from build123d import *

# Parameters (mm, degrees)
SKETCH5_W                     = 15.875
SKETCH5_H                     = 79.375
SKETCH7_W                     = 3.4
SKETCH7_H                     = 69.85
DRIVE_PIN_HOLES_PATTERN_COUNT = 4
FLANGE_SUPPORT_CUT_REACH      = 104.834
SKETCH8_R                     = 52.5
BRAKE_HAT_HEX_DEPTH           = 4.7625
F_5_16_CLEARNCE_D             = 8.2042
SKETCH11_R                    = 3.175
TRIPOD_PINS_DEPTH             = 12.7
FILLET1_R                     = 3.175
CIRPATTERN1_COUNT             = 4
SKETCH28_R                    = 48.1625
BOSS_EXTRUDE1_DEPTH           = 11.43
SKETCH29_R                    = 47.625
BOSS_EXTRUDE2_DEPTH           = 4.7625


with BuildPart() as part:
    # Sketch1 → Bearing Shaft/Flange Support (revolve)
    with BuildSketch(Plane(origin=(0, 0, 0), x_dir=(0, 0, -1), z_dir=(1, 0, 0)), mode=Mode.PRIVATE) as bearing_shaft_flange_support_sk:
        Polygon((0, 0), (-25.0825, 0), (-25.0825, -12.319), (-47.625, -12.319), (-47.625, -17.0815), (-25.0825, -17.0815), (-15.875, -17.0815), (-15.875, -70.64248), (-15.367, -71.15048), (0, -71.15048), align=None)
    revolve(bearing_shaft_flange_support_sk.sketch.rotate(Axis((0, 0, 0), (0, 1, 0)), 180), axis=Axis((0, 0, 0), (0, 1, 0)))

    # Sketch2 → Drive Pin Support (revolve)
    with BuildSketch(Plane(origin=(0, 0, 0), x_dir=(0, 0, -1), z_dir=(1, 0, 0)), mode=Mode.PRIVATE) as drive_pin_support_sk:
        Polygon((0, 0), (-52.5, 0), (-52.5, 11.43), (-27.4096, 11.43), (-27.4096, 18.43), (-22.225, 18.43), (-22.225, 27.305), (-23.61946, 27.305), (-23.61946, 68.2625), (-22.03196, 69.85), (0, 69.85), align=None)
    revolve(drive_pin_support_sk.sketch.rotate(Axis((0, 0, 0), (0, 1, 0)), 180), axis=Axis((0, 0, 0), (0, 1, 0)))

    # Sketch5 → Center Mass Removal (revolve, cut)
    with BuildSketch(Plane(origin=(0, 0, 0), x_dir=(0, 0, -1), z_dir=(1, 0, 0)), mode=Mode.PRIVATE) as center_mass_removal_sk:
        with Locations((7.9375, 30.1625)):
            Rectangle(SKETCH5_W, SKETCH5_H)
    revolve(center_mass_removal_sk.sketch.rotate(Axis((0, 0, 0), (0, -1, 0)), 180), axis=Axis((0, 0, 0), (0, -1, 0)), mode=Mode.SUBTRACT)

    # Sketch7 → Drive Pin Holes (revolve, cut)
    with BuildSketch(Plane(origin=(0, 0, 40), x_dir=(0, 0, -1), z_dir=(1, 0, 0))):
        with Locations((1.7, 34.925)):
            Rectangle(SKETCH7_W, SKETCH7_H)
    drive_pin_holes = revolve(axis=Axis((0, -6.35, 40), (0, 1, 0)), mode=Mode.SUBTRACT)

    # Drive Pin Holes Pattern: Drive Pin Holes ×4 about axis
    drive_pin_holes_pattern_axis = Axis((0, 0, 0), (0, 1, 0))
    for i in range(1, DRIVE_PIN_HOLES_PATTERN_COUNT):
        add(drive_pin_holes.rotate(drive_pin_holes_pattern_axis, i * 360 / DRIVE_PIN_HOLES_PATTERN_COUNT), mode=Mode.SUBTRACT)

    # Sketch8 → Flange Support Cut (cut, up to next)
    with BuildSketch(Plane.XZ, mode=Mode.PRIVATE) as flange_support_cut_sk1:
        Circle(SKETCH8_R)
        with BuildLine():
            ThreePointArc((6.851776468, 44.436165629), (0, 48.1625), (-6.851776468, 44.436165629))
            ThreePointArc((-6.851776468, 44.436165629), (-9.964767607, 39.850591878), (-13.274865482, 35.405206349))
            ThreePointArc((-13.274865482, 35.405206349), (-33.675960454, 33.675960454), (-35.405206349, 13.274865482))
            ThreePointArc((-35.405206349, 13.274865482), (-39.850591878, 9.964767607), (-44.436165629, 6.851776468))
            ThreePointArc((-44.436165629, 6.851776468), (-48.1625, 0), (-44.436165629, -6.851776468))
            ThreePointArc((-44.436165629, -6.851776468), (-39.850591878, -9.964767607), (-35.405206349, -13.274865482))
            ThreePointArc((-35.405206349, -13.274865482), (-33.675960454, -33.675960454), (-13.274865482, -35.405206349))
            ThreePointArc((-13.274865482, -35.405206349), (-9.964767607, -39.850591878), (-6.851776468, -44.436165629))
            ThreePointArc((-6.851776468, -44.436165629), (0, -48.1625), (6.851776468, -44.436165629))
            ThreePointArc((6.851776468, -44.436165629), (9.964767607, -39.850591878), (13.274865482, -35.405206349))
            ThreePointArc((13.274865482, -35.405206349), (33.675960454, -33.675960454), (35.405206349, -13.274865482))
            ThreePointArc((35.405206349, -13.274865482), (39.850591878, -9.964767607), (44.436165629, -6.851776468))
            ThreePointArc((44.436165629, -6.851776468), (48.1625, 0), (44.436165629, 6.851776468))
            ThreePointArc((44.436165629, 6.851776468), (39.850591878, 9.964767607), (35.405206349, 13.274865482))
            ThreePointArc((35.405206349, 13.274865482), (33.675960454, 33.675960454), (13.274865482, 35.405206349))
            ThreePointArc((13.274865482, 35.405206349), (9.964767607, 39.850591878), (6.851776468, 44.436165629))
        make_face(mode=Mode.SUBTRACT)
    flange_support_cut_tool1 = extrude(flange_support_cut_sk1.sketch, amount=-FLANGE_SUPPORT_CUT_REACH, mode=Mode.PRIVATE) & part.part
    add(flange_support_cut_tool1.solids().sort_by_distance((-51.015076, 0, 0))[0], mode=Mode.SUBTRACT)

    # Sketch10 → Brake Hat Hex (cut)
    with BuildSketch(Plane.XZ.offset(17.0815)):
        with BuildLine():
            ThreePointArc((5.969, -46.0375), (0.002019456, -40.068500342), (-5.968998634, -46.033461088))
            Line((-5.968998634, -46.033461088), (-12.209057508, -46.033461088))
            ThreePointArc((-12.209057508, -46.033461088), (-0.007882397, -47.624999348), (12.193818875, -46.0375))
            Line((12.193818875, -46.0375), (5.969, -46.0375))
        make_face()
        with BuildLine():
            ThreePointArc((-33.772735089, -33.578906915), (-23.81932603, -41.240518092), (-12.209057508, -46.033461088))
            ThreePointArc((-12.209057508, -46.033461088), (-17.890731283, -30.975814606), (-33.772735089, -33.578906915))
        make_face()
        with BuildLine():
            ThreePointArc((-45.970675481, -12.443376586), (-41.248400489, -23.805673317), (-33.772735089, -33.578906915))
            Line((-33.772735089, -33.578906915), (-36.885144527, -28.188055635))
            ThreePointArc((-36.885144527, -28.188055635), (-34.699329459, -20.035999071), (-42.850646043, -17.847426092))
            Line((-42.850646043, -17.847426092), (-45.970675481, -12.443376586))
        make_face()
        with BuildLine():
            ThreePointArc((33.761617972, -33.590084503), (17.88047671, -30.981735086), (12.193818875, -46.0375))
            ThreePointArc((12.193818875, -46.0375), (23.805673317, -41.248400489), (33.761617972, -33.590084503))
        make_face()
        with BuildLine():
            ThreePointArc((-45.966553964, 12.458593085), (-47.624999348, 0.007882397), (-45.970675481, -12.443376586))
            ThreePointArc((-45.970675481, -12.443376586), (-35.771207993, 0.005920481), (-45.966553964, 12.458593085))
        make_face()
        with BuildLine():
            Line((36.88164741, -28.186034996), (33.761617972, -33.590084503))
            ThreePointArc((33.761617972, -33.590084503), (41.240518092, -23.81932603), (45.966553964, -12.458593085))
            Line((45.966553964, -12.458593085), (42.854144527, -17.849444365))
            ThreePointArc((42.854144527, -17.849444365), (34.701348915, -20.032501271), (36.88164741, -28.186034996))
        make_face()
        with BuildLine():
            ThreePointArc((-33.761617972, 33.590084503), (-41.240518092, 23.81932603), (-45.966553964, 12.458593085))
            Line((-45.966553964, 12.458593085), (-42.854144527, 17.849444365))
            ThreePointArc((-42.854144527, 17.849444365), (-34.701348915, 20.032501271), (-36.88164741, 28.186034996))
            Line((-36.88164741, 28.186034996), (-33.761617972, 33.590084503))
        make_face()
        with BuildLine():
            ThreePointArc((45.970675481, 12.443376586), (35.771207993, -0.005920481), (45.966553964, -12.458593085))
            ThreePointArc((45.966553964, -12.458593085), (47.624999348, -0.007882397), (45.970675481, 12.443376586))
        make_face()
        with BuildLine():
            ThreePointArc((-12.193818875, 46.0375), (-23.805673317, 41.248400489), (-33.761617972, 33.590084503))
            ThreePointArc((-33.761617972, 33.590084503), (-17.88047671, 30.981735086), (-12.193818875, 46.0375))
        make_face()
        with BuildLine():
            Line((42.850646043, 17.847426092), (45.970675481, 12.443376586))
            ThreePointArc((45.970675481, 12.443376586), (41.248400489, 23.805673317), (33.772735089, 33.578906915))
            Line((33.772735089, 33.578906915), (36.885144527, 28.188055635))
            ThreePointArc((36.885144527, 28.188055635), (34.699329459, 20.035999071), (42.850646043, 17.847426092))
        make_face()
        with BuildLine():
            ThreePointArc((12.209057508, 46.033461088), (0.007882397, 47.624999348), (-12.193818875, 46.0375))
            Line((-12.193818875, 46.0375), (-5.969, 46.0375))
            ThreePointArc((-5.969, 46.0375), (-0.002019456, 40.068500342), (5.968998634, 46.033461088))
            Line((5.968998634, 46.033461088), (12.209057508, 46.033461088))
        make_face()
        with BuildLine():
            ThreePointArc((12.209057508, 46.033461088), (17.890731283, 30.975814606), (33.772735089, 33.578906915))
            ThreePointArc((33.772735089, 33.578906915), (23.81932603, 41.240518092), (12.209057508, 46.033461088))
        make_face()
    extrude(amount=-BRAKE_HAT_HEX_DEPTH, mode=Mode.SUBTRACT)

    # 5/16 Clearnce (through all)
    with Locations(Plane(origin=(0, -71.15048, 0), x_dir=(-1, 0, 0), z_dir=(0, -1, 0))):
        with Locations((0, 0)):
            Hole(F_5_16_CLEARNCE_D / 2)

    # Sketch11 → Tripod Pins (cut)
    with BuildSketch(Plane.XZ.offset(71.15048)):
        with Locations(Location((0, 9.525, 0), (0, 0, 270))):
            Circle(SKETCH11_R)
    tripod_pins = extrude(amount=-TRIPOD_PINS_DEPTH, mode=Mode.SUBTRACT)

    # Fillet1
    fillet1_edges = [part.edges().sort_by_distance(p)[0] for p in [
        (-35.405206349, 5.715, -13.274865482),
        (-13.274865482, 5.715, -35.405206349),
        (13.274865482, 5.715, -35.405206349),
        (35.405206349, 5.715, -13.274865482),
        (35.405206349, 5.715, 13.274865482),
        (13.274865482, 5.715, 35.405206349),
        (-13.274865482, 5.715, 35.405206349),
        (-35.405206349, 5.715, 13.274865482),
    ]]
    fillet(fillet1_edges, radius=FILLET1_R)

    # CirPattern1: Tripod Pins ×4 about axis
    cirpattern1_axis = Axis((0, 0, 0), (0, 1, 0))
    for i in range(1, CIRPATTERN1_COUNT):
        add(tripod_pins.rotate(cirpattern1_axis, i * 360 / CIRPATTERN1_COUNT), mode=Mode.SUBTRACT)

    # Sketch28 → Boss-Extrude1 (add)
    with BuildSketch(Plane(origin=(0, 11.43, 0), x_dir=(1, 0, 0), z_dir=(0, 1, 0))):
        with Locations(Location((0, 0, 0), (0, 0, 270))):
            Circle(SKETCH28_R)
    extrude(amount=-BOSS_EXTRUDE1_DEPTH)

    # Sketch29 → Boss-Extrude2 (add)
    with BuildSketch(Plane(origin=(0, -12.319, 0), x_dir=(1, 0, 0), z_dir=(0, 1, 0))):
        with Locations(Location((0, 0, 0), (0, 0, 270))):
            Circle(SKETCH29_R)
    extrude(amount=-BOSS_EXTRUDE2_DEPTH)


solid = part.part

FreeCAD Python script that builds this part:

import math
import FreeCAD as App
import Part
import Sketcher
from FreeCAD import Vector
Q = App.Units.Quantity


def edges_at(feature, points):
    """Names of the edges that pass closest to the given points."""
    edges = feature.Shape.Edges
    near = lambda p: min(range(len(edges)), key=lambda i: edges[i].distToShape(Part.Vertex(*p))[0])
    return sorted({f"Edge{near(p) + 1}" for p in points})


def add_polygon(sketch, points):
    """Adds a closed chain of lines whose ends are joined by coincident constraints."""
    first, n = sketch.GeometryCount, len(points)
    for a, b in zip(points, points[1:] + points[:1]):
        sketch.addGeometry(Part.LineSegment(App.Vector(*a, 0), App.Vector(*b, 0)), False)
    for i in range(n):
        sketch.addConstraint(Sketcher.Constraint("Coincident", first + i, 2, first + (i + 1) % n, 1))

doc = App.newDocument("Part")
body = doc.addObject("PartDesign::Body", "Body")

# Sketch on YZ plane
sketch1 = body.newObject("Sketcher::SketchObject", "Sketch")
sketch1.AttachmentSupport = (doc.getObject("YZ_Plane"), [""])
sketch1.MapMode = "FlatFace"
add_polygon(sketch1, [(0, 0), (0, 25.0825), (-12.319, 25.0825), (-12.319, 47.625), (-17.0815, 47.625), (-17.0815, 15.875), (-70.64248, 15.875), (-71.15048, 15.367), (-71.15048, 0)])  # lines 0-8
sketch1.addConstraint(Sketcher.Constraint("Vertical", 0))
sketch1.addConstraint(Sketcher.Constraint("Horizontal", 1))
sketch1.addConstraint(Sketcher.Constraint("Vertical", 2))
sketch1.addConstraint(Sketcher.Constraint("Horizontal", 3))
sketch1.addConstraint(Sketcher.Constraint("Vertical", 4))
sketch1.addConstraint(Sketcher.Constraint("Horizontal", 5))
sketch1.addConstraint(Sketcher.Constraint("Vertical", 7))
sketch1.addConstraint(Sketcher.Constraint("Horizontal", 8))
sketch1.addConstraint(Sketcher.Constraint("Coincident", 8, 2, -1, 1))
sketch1.addConstraint(Sketcher.Constraint("Angle", 6, Q("-135 deg")))
sketch1.addConstraint(Sketcher.Constraint("DistanceY", 4, 2, 4, 1, Q("1.25 in")))
sketch1.addConstraint(Sketcher.Constraint("DistanceX", 1, 2, 1, 1, Q("0.485 in")))
sketch1.addConstraint(Sketcher.Constraint("DistanceX", 3, 2, 3, 1, Q("0.1875 in")))
sketch1.addConstraint(Sketcher.Constraint("DistanceY", 7, 2, 7, 1, Q("0.605 in")))
sketch1.addConstraint(Sketcher.Constraint("DistanceX", 6, 2, 5, 2, Q("0.02 in")))
sketch1.addConstraint(Sketcher.Constraint("DistanceX", 5, 2, 5, 1, Q("2.1087 in")))
sketch1.addConstraint(Sketcher.Constraint("DistanceY", 0, 1, 0, 2, Q("0.9875 in")))
revolution = body.newObject("PartDesign::Revolution", "Revolution")
revolution.Profile = sketch1
revolution.ReferenceAxis = (sketch1, ["H_Axis"])
revolution.Angle = 360

# Sketch on YZ plane
sketch2 = body.newObject("Sketcher::SketchObject", "Sketch001")
sketch2.AttachmentSupport = (doc.getObject("YZ_Plane"), [""])
sketch2.MapMode = "FlatFace"
add_polygon(sketch2, [(0, 52.5), (0, 0), (69.85, 0), (69.85, 22.03196), (68.2625, 23.61946), (27.305, 23.61946), (27.305, 22.225), (18.43, 22.225), (18.43, 27.4096), (11.43, 27.4096), (11.43, 52.5)])  # lines 0-10
sketch2.addConstraint(Sketcher.Constraint("Vertical", 0))
sketch2.addConstraint(Sketcher.Constraint("Horizontal", 1))
sketch2.addConstraint(Sketcher.Constraint("Vertical", 2))
sketch2.addConstraint(Sketcher.Constraint("Horizontal", 4))
sketch2.addConstraint(Sketcher.Constraint("Vertical", 5))
sketch2.addConstraint(Sketcher.Constraint("Horizontal", 6))
sketch2.addConstraint(Sketcher.Constraint("Vertical", 7))
sketch2.addConstraint(Sketcher.Constraint("Horizontal", 8))
sketch2.addConstraint(Sketcher.Constraint("Vertical", 9))
sketch2.addConstraint(Sketcher.Constraint("Horizontal", 10))
sketch2.addConstraint(Sketcher.Constraint("Coincident", 0, 2, -1, 1))
sketch2.addConstraint(Sketcher.Constraint("Angle", 3, Q("135 deg")))
sketch2.addConstraint(Sketcher.Constraint("DistanceX", 1, 1, 1, 2, Q("2.75 in")))
sketch2.addConstraint(Sketcher.Constraint("DistanceX", 10, 2, 10, 1, Q("0.45 in")))
sketch2.addConstraint(Sketcher.Constraint("DistanceX", 4, 2, 4, 1, Q("1.6125 in")))
sketch2.addConstraint(Sketcher.Constraint("DistanceY", 2, 1, 2, 2, Q("0.8674 in")))
sketch2.addConstraint(Sketcher.Constraint("DistanceY", 5, 2, 5, 1, Q("0.0549 in")))
sketch2.addConstraint(Sketcher.Constraint("DistanceX", -1, 1, 3, 2, Q("2.6875 in")))
sketch2.addConstraint(Sketcher.Constraint("DistanceX", 6, 2, 6, 1, 8.875))
sketch2.addConstraint(Sketcher.Constraint("DistanceY", 0, 2, 0, 1, 52.5))
sketch2.addConstraint(Sketcher.Constraint("DistanceY", 7, 1, 7, 2, 5.1846))
revolution2 = body.newObject("PartDesign::Revolution", "Revolution001")
revolution2.Profile = sketch2
revolution2.ReferenceAxis = (sketch2, ["H_Axis"])
revolution2.Angle = 360

# Sketch on YZ plane
sketch3 = body.newObject("Sketcher::SketchObject", "Sketch002")
sketch3.AttachmentSupport = (doc.getObject("YZ_Plane"), [""])
sketch3.MapMode = "FlatFace"
add_polygon(sketch3, [(69.85, 0), (-9.525, 0), (-9.525, -15.875), (69.85, -15.875)])  # lines 0-3
sketch3.addConstraint(Sketcher.Constraint("Horizontal", 0))
sketch3.addConstraint(Sketcher.Constraint("Vertical", 1))
sketch3.addConstraint(Sketcher.Constraint("Horizontal", 2))
sketch3.addConstraint(Sketcher.Constraint("Vertical", 3))
sketch3.addConstraint(Sketcher.Constraint("PointOnObject", 0, 2, -1))
sketch3.addConstraint(Sketcher.Constraint("DistanceX", 0, 2, 0, 1, Q("3.125 in")))
sketch3.addConstraint(Sketcher.Constraint("DistanceY", 1, 2, 1, 1, Q("0.625 in")))
sketch3.addConstraint(Sketcher.Constraint("DistanceX", -1, 1, 2, 2, Q("2.75 in")))
groove = body.newObject("PartDesign::Groove", "Groove")
groove.Profile = sketch3
groove.ReferenceAxis = (sketch3, ["H_Axis"])
groove.Angle = 360

# Sketch on YZ plane
sketch4 = body.newObject("Sketcher::SketchObject", "Sketch003")
sketch4.AttachmentSupport = (doc.getObject("YZ_Plane"), [""])
sketch4.MapMode = "FlatFace"
add_polygon(sketch4, [(69.85, 40), (0, 40), (0, 36.6), (69.85, 36.6)])  # lines 0-3
sketch4.addGeometry(Part.LineSegment(Vector(0, 40, 0), Vector(69.85, 40, 0)), True)  # axis
sketch4.addConstraint(Sketcher.Constraint("Horizontal", 0))
sketch4.addConstraint(Sketcher.Constraint("Vertical", 1))
sketch4.addConstraint(Sketcher.Constraint("Horizontal", 2))
sketch4.addConstraint(Sketcher.Constraint("Vertical", 3))
sketch4.addConstraint(Sketcher.Constraint("Horizontal", 4))
sketch4.addConstraint(Sketcher.Constraint("Coincident", 4, 1, 0, 2))
sketch4.addConstraint(Sketcher.Constraint("PointOnObject", 0, 2, -2))
sketch4.addConstraint(Sketcher.Constraint("Vertical", 2, 2, 4, 2))
sketch4.addConstraint(Sketcher.Constraint("DistanceX", 0, 2, 0, 1, Q("2.75 in")))
sketch4.addConstraint(Sketcher.Constraint("DistanceY", 1, 2, 1, 1, 3.4))
sketch4.addConstraint(Sketcher.Constraint("DistanceY", -1, 1, 0, 2, 40.0))
groove2 = body.newObject("PartDesign::Groove", "Groove001")
groove2.Profile = sketch4
groove2.ReferenceAxis = (sketch4, ["Axis0"])
groove2.Angle = 360
doc.recompute()

polarpattern = body.newObject("PartDesign::PolarPattern", "PolarPattern")
polarpattern.Originals = [groove2]
polarpattern.Axis = (doc.getObject("Y_Axis"), [""])
polarpattern.Angle = 360
polarpattern.Occurrences = 4
body.Tip = polarpattern

# Sketch on XZ plane
sketch5 = body.newObject("Sketcher::SketchObject", "Sketch004")
sketch5.AttachmentSupport = (doc.getObject("XZ_Plane"), [""])
sketch5.MapMode = "FlatFace"
sketch5.addGeometry(Part.Circle(Vector(0, 0, 0), Vector(0, 0, 1), 52.5), False)
sketch5.addGeometry(Part.ArcOfCircle(Part.Circle(Vector(0, 40, 0), Vector(0, 0, 1), 8.1625), math.radians(32.920938), math.radians(147.079062)), False)
sketch5.addGeometry(Part.ArcOfCircle(Part.Circle(Vector(113.458283, 113.458283, 0), Vector(0, 0, 1), 127), math.radians(-147.079062), math.radians(-142.077781)), False)
sketch5.addGeometry(Part.ArcOfCircle(Part.Circle(Vector(22.45064, 22.45064, 0), Vector(0, 0, 1), 15.875), math.radians(-35.310106), math.radians(125.310106)), False)
sketch5.addGeometry(Part.ArcOfCircle(Part.Circle(Vector(113.458283, 113.458283, 0), Vector(0, 0, 1), 127), math.radians(-127.922219), math.radians(-122.920938)), False)
sketch5.addGeometry(Part.ArcOfCircle(Part.Circle(Vector(40, 0, 0), Vector(0, 0, 1), 8.1625), math.radians(-57.079062), math.radians(57.079062)), False)
sketch5.addGeometry(Part.ArcOfCircle(Part.Circle(Vector(113.458283, -113.458283, 0), Vector(0, 0, 1), 127), math.radians(122.920938), math.radians(127.922219)), False)
sketch5.addGeometry(Part.ArcOfCircle(Part.Circle(Vector(22.45064, -22.45064, 0), Vector(0, 0, 1), 15.875), math.radians(-125.310106), math.radians(35.310106)), False)
sketch5.addGeometry(Part.ArcOfCircle(Part.Circle(Vector(113.458283, -113.458283, 0), Vector(0, 0, 1), 127), math.radians(142.077781), math.radians(147.079062)), False)
sketch5.addGeometry(Part.ArcOfCircle(Part.Circle(Vector(0, -40, 0), Vector(0, 0, 1), 8.1625), math.radians(-147.079062), math.radians(-32.920938)), False)
sketch5.addGeometry(Part.ArcOfCircle(Part.Circle(Vector(-113.458283, -113.458283, 0), Vector(0, 0, 1), 127), math.radians(32.920938), math.radians(37.922219)), False)
sketch5.addGeometry(Part.ArcOfCircle(Part.Circle(Vector(-22.45064, -22.45064, 0), Vector(0, 0, 1), 15.875), math.radians(144.689894), math.radians(305.310106)), False)
sketch5.addGeometry(Part.ArcOfCircle(Part.Circle(Vector(-113.458283, -113.458283, 0), Vector(0, 0, 1), 127), math.radians(52.077781), math.radians(57.079062)), False)
sketch5.addGeometry(Part.ArcOfCircle(Part.Circle(Vector(-40, 0, 0), Vector(0, 0, 1), 8.1625), math.radians(122.920938), math.radians(237.079062)), False)
sketch5.addGeometry(Part.ArcOfCircle(Part.Circle(Vector(-113.458283, 113.458283, 0), Vector(0, 0, 1), 127), math.radians(-57.079062), math.radians(-52.077781)), False)
sketch5.addGeometry(Part.ArcOfCircle(Part.Circle(Vector(-22.45064, 22.45064, 0), Vector(0, 0, 1), 15.875), math.radians(54.689894), math.radians(215.310106)), False)
sketch5.addGeometry(Part.ArcOfCircle(Part.Circle(Vector(-113.458283, 113.458283, 0), Vector(0, 0, 1), 127), math.radians(-37.922219), math.radians(-32.920938)), False)
sketch5.addConstraint(Sketcher.Constraint("Tangent", 1, 1, 2, 1))
sketch5.addConstraint(Sketcher.Constraint("Coincident", 2, 2, 3, 2))
sketch5.addConstraint(Sketcher.Constraint("Coincident", 3, 1, 4, 1))
sketch5.addConstraint(Sketcher.Constraint("Tangent", 4, 2, 5, 2))
sketch5.addConstraint(Sketcher.Constraint("Tangent", 5, 1, 6, 1))
sketch5.addConstraint(Sketcher.Constraint("Coincident", 6, 2, 7, 2))
sketch5.addConstraint(Sketcher.Constraint("Coincident", 7, 1, 8, 1))
sketch5.addConstraint(Sketcher.Constraint("Tangent", 8, 2, 9, 2))
sketch5.addConstraint(Sketcher.Constraint("Tangent", 9, 1, 10, 1))
sketch5.addConstraint(Sketcher.Constraint("Coincident", 10, 2, 11, 2))
sketch5.addConstraint(Sketcher.Constraint("Coincident", 11, 1, 12, 1))
sketch5.addConstraint(Sketcher.Constraint("Tangent", 12, 2, 13, 2))
sketch5.addConstraint(Sketcher.Constraint("Tangent", 13, 1, 14, 1))
sketch5.addConstraint(Sketcher.Constraint("Coincident", 14, 2, 15, 2))
sketch5.addConstraint(Sketcher.Constraint("Coincident", 15, 1, 16, 1))
sketch5.addConstraint(Sketcher.Constraint("Tangent", 16, 2, 1, 2))
sketch5.addConstraint(Sketcher.Constraint("Coincident", 0, 3, -1, 1))
sketch5.addConstraint(Sketcher.Constraint("Coincident", 4, 3, 2, 3))
sketch5.addConstraint(Sketcher.Constraint("Coincident", 8, 3, 6, 3))
sketch5.addConstraint(Sketcher.Constraint("Coincident", 12, 3, 10, 3))
sketch5.addConstraint(Sketcher.Constraint("Coincident", 16, 3, 14, 3))
sketch5.addConstraint(Sketcher.Constraint("Equal", 2, 4))
sketch5.addConstraint(Sketcher.Constraint("Equal", 1, 5))
sketch5.addConstraint(Sketcher.Constraint("Equal", 4, 6))
sketch5.addConstraint(Sketcher.Constraint("Equal", 3, 7))
sketch5.addConstraint(Sketcher.Constraint("Equal", 6, 8))
sketch5.addConstraint(Sketcher.Constraint("Equal", 5, 9))
sketch5.addConstraint(Sketcher.Constraint("Equal", 8, 10))
sketch5.addConstraint(Sketcher.Constraint("Equal", 7, 11))
sketch5.addConstraint(Sketcher.Constraint("Equal", 10, 12))
sketch5.addConstraint(Sketcher.Constraint("Equal", 9, 13))
sketch5.addConstraint(Sketcher.Constraint("Equal", 12, 14))
sketch5.addConstraint(Sketcher.Constraint("Equal", 11, 15))
sketch5.addConstraint(Sketcher.Constraint("Equal", 14, 16))
sketch5.addConstraint(Sketcher.Constraint("Symmetric", 1, 3, 9, 3, -1, 1))
sketch5.addConstraint(Sketcher.Constraint("Symmetric", 3, 3, 11, 3, -1, 1))
sketch5.addConstraint(Sketcher.Constraint("Symmetric", 5, 3, 13, 3, -1, 1))
sketch5.addConstraint(Sketcher.Constraint("Symmetric", 7, 3, 15, 3, -1, 1))
sketch5.addConstraint(Sketcher.Constraint("Symmetric", 6, 3, 10, 3, -2))
sketch5.addConstraint(Sketcher.Constraint("Symmetric", 7, 3, 11, 3, -2))
sketch5.addConstraint(Sketcher.Constraint("Radius", 2, Q("5 in")))
sketch5.addConstraint(Sketcher.Constraint("Radius", 3, Q("0.625 in")))
sketch5.addConstraint(Sketcher.Constraint("Diameter", 0, 105.0))
sketch5.addConstraint(Sketcher.Constraint("Radius", 1, 8.1625))
sketch5.addConstraint(Sketcher.Constraint("DistanceY", -1, 1, 1, 3, 40.0))
sketch5.addConstraint(Sketcher.Constraint("DistanceX", -1, 1, 5, 3, 40.0))
sketch5.addConstraint(Sketcher.Constraint("DistanceX", 2, 2, 4, 2, 31.1613))
sketch5.addConstraint(Sketcher.Constraint("DistanceX", -1, 1, 3, 3, 22.45064))
pocket1 = body.newObject("PartDesign::Pocket", "Pocket")
pocket1.Profile = sketch5
pocket1.Length = Q("0.45 in")

# Sketch on XZ plane
sketch6 = body.newObject("Sketcher::SketchObject", "Sketch005")
sketch6.AttachmentSupport = (doc.getObject("XZ_Plane"), [""])
sketch6.MapMode = "FlatFace"
sketch6.AttachmentOffset = App.Placement(Vector(0, 0, 0.6725 * 25.4), App.Rotation())
sketch6.addGeometry(Part.ArcOfCircle(Part.Circle(Vector(0, -46.0375, 0), Vector(0, 0, 1), 5.969), math.radians(0), math.radians(179.961231)), False)
sketch6.addGeometry(Part.LineSegment(Vector(-5.968999, -46.033461, 0), Vector(-12.209058, -46.033461, 0)), False)
sketch6.addGeometry(Part.ArcOfCircle(Part.Circle(Vector(0, 0, 0), Vector(0, 0, 1), 47.625), math.radians(-104.854078), math.radians(-75.164888)), False)
sketch6.addGeometry(Part.LineSegment(Vector(12.193819, -46.0375, 0), Vector(5.969, -46.0375, 0)), False)
sketch6.addGeometry(Part.ArcOfCircle(Part.Circle(Vector(0, 0, 0), Vector(0, 0, 1), 47.625), math.radians(-135.164888), math.radians(-104.854078)), False)
sketch6.addGeometry(Part.ArcOfCircle(Part.Circle(Vector(-24.242552, -41.973286, 0), Vector(0, 0, 1), 12.7), math.radians(-18.644712), math.radians(138.625746)), False)
sketch6.addGeometry(Part.ArcOfCircle(Part.Circle(Vector(0, 0, 0), Vector(0, 0, 1), 47.625), math.radians(-164.854078), math.radians(-135.164888)), False)
sketch6.addGeometry(Part.LineSegment(Vector(-33.772735, -33.578907, 0), Vector(-36.885145, -28.188056, 0)), False)
sketch6.addGeometry(Part.ArcOfCircle(Part.Circle(Vector(-39.869645, -23.01875, 0), Vector(0, 0, 1), 5.969), math.radians(-60), math.radians(119.961231)), False)
sketch6.addGeometry(Part.LineSegment(Vector(-42.850646, -17.847426, 0), Vector(-45.970675, -12.443377, 0)), False)
sketch6.addGeometry(Part.ArcOfCircle(Part.Circle(Vector(24.228656, -41.981309, 0), Vector(0, 0, 1), 12.7), math.radians(41.355288), math.radians(198.625746)), False)
sketch6.addGeometry(Part.ArcOfCircle(Part.Circle(Vector(0, 0, 0), Vector(0, 0, 1), 47.625), math.radians(-75.164888), math.radians(-44.854078)), False)
sketch6.addGeometry(Part.ArcOfCircle(Part.Circle(Vector(0, 0, 0), Vector(0, 0, 1), 47.625), math.radians(164.835112), math.radians(195.145922)), False)
sketch6.addGeometry(Part.ArcOfCircle(Part.Circle(Vector(-48.471208, 0.008022, 0), Vector(0, 0, 1), 12.7), math.radians(-78.644712), math.radians(78.625746)), False)
sketch6.addGeometry(Part.LineSegment(Vector(36.881647, -28.186035, 0), Vector(33.761618, -33.590085, 0)), False)
sketch6.addGeometry(Part.ArcOfCircle(Part.Circle(Vector(0, 0, 0), Vector(0, 0, 1), 47.625), math.radians(-44.854078), math.radians(-15.164888)), False)
sketch6.addGeometry(Part.LineSegment(Vector(45.966554, -12.458593, 0), Vector(42.854145, -17.849444, 0)), False)
sketch6.addGeometry(Part.ArcOfCircle(Part.Circle(Vector(39.869645, -23.01875, 0), Vector(0, 0, 1), 5.969), math.radians(60), math.radians(239.961231)), False)
sketch6.addGeometry(Part.ArcOfCircle(Part.Circle(Vector(0, 0, 0), Vector(0, 0, 1), 47.625), math.radians(135.145922), math.radians(164.835112)), False)
sketch6.addGeometry(Part.LineSegment(Vector(-45.966554, 12.458593, 0), Vector(-42.854145, 17.849444, 0)), False)
sketch6.addGeometry(Part.ArcOfCircle(Part.Circle(Vector(-39.869645, 23.01875, 0), Vector(0, 0, 1), 5.969), math.radians(-120), math.radians(59.961231)), False)
sketch6.addGeometry(Part.LineSegment(Vector(-36.881647, 28.186035, 0), Vector(-33.761618, 33.590085, 0)), False)
sketch6.addGeometry(Part.ArcOfCircle(Part.Circle(Vector(48.471208, -0.008022, 0), Vector(0, 0, 1), 12.7), math.radians(101.355288), math.radians(258.625746)), False)
sketch6.addGeometry(Part.ArcOfCircle(Part.Circle(Vector(0, 0, 0), Vector(0, 0, 1), 47.625), math.radians(-15.164888), math.radians(15.145922)), False)
sketch6.addGeometry(Part.ArcOfCircle(Part.Circle(Vector(0, 0, 0), Vector(0, 0, 1), 47.625), math.radians(104.835112), math.radians(135.145922)), False)
sketch6.addGeometry(Part.ArcOfCircle(Part.Circle(Vector(-24.228656, 41.981309, 0), Vector(0, 0, 1), 12.7), math.radians(-138.644712), math.radians(18.625746)), False)
sketch6.addGeometry(Part.LineSegment(Vector(42.850646, 17.847426, 0), Vector(45.970675, 12.443377, 0)), False)
sketch6.addGeometry(Part.ArcOfCircle(Part.Circle(Vector(0, 0, 0), Vector(0, 0, 1), 47.625), math.radians(15.145922), math.radians(44.835112)), False)
sketch6.addGeometry(Part.LineSegment(Vector(33.772735, 33.578907, 0), Vector(36.885145, 28.188056, 0)), False)
sketch6.addGeometry(Part.ArcOfCircle(Part.Circle(Vector(39.869645, 23.01875, 0), Vector(0, 0, 1), 5.969), math.radians(120), math.radians(299.961231)), False)
sketch6.addGeometry(Part.ArcOfCircle(Part.Circle(Vector(0, 0, 0), Vector(0, 0, 1), 47.625), math.radians(75.145922), math.radians(104.835112)), False)
sketch6.addGeometry(Part.LineSegment(Vector(-12.193819, 46.0375, 0), Vector(-5.969, 46.0375, 0)), False)
sketch6.addGeometry(Part.ArcOfCircle(Part.Circle(Vector(0, 46.0375, 0), Vector(0, 0, 1), 5.969), math.radians(-180), math.radians(-0.038769)), False)
sketch6.addGeometry(Part.LineSegment(Vector(5.968999, 46.033461, 0), Vector(12.209058, 46.033461, 0)), False)
sketch6.addGeometry(Part.ArcOfCircle(Part.Circle(Vector(24.242552, 41.973286, 0), Vector(0, 0, 1), 12.7), math.radians(161.355288), math.radians(318.625746)), False)
sketch6.addGeometry(Part.ArcOfCircle(Part.Circle(Vector(0, 0, 0), Vector(0, 0, 1), 47.625), math.radians(44.835112), math.radians(75.145922)), False)
sketch6.addConstraint(Sketcher.Constraint("Coincident", 0, 2, 1, 1))
sketch6.addConstraint(Sketcher.Constraint("Coincident", 1, 2, 2, 1))
sketch6.addConstraint(Sketcher.Constraint("Coincident", 2, 2, 3, 1))
sketch6.addConstraint(Sketcher.Constraint("Coincident", 3, 2, 0, 1))
sketch6.addConstraint(Sketcher.Constraint("Coincident", 4, 1, 5, 2))
sketch6.addConstraint(Sketcher.Constraint("Coincident", 5, 1, 4, 2))
sketch6.addConstraint(Sketcher.Constraint("Coincident", 6, 2, 7, 1))
sketch6.addConstraint(Sketcher.Constraint("Coincident", 7, 2, 8, 1))
sketch6.addConstraint(Sketcher.Constraint("Coincident", 8, 2, 9, 1))
sketch6.addConstraint(Sketcher.Constraint("Coincident", 9, 2, 6, 1))
sketch6.addConstraint(Sketcher.Constraint("Coincident", 10, 1, 11, 2))
sketch6.addConstraint(Sketcher.Constraint("Coincident", 11, 1, 10, 2))
sketch6.addConstraint(Sketcher.Constraint("Coincident", 12, 1, 13, 2))
sketch6.addConstraint(Sketcher.Constraint("Coincident", 13, 1, 12, 2))
sketch6.addConstraint(Sketcher.Constraint("Coincident", 14, 2, 15, 1))
sketch6.addConstraint(Sketcher.Constraint("Coincident", 15, 2, 16, 1))
sketch6.addConstraint(Sketcher.Constraint("Coincident", 16, 2, 17, 1))
sketch6.addConstraint(Sketcher.Constraint("Coincident", 17, 2, 14, 1))
sketch6.addConstraint(Sketcher.Constraint("Coincident", 18, 2, 19, 1))
sketch6.addConstraint(Sketcher.Constraint("Coincident", 19, 2, 20, 1))
sketch6.addConstraint(Sketcher.Constraint("Coincident", 20, 2, 21, 1))
sketch6.addConstraint(Sketcher.Constraint("Coincident", 21, 2, 18, 1))
sketch6.addConstraint(Sketcher.Constraint("Coincident", 22, 1, 23, 2))
sketch6.addConstraint(Sketcher.Constraint("Coincident", 23, 1, 22, 2))
sketch6.addConstraint(Sketcher.Constraint("Coincident", 24, 1, 25, 2))
sketch6.addConstraint(Sketcher.Constraint("Coincident", 25, 1, 24, 2))
sketch6.addConstraint(Sketcher.Constraint("Coincident", 26, 2, 27, 1))
sketch6.addConstraint(Sketcher.Constraint("Coincident", 27, 2, 28, 1))
sketch6.addConstraint(Sketcher.Constraint("Coincident", 28, 2, 29, 1))
sketch6.addConstraint(Sketcher.Constraint("Coincident", 29, 2, 26, 1))
sketch6.addConstraint(Sketcher.Constraint("Coincident", 30, 2, 31, 1))
sketch6.addConstraint(Sketcher.Constraint("Coincident", 31, 2, 32, 1))
sketch6.addConstraint(Sketcher.Constraint("Coincident", 32, 2, 33, 1))
sketch6.addConstraint(Sketcher.Constraint("Coincident", 33, 2, 30, 1))
sketch6.addConstraint(Sketcher.Constraint("Coincident", 34, 1, 35, 2))
sketch6.addConstraint(Sketcher.Constraint("Coincident", 35, 1, 34, 2))
sketch6.addConstraint(Sketcher.Constraint("Horizontal", 1))
sketch6.addConstraint(Sketcher.Constraint("Horizontal", 3))
sketch6.addConstraint(Sketcher.Constraint("Horizontal", 31))
sketch6.addConstraint(Sketcher.Constraint("Horizontal", 33))
sketch6.addConstraint(Sketcher.Constraint("Coincident", 2, 3, -1, 1))
sketch6.addConstraint(Sketcher.Constraint("Coincident", 4, 3, -1, 1))
sketch6.addConstraint(Sketcher.Constraint("Coincident", 6, 3, -1, 1))
sketch6.addConstraint(Sketcher.Constraint("Coincident", 11, 3, -1, 1))
sketch6.addConstraint(Sketcher.Constraint("Coincident", 12, 3, -1, 1))
sketch6.addConstraint(Sketcher.Constraint("Coincident", 15, 3, -1, 1))
sketch6.addConstraint(Sketcher.Constraint("Coincident", 18, 3, -1, 1))
sketch6.addConstraint(Sketcher.Constraint("Coincident", 23, 3, -1, 1))
sketch6.addConstraint(Sketcher.Constraint("Coincident", 24, 3, -1, 1))
sketch6.addConstraint(Sketcher.Constraint("Coincident", 27, 3, -1, 1))
sketch6.addConstraint(Sketcher.Constraint("Coincident", 30, 3, -1, 1))
sketch6.addConstraint(Sketcher.Constraint("Coincident", 35, 3, -1, 1))
sketch6.addConstraint(Sketcher.Constraint("Coincident", 5, 1, 1, 2))
sketch6.addConstraint(Sketcher.Constraint("Coincident", 6, 2, 4, 1))
sketch6.addConstraint(Sketcher.Constraint("Coincident", 11, 1, 2, 2))
sketch6.addConstraint(Sketcher.Constraint("Coincident", 13, 1, 9, 2))
sketch6.addConstraint(Sketcher.Constraint("Coincident", 14, 2, 10, 1))
sketch6.addConstraint(Sketcher.Constraint("Coincident", 18, 2, 12, 1))
sketch6.addConstraint(Sketcher.Constraint("Coincident", 23, 1, 15, 2))
sketch6.addConstraint(Sketcher.Constraint("Coincident", 25, 1, 21, 2))
sketch6.addConstraint(Sketcher.Constraint("Coincident", 26, 2, 22, 1))
sketch6.addConstraint(Sketcher.Constraint("Coincident", 30, 2, 24, 1))
sketch6.addConstraint(Sketcher.Constraint("Coincident", 34, 1, 33, 2))
sketch6.addConstraint(Sketcher.Constraint("Equal", 0, 8))
sketch6.addConstraint(Sketcher.Constraint("Equal", 5, 10))
sketch6.addConstraint(Sketcher.Constraint("Equal", 10, 13))
sketch6.addConstraint(Sketcher.Constraint("Equal", 8, 17))
sketch6.addConstraint(Sketcher.Constraint("Equal", 17, 20))
sketch6.addConstraint(Sketcher.Constraint("Equal", 13, 22))
sketch6.addConstraint(Sketcher.Constraint("Equal", 22, 25))
sketch6.addConstraint(Sketcher.Constraint("Equal", 20, 29))
sketch6.addConstraint(Sketcher.Constraint("Equal", 29, 32))
sketch6.addConstraint(Sketcher.Constraint("Equal", 25, 34))
sketch6.addConstraint(Sketcher.Constraint("Symmetric", 17, 3, 20, 3, -1, 1))
sketch6.addConstraint(Sketcher.Constraint("Symmetric", 13, 3, 22, 3, -1, 1))
sketch6.addConstraint(Sketcher.Constraint("Symmetric", 10, 3, 25, 3, -1, 1))
sketch6.addConstraint(Sketcher.Constraint("Symmetric", 8, 3, 29, 3, -1, 1))
sketch6.addConstraint(Sketcher.Constraint("Symmetric", 0, 3, 32, 3, -1, 1))
sketch6.addConstraint(Sketcher.Constraint("Symmetric", 5, 3, 34, 3, -1, 1))
sketch6.addConstraint(Sketcher.Constraint("Symmetric", 8, 3, 17, 3, -2))
sketch6.addConstraint(Sketcher.Constraint("PointOnObject", 0, 3, -2))
sketch6.addConstraint(Sketcher.Constraint("Parallel", 7, 9))
sketch6.addConstraint(Sketcher.Constraint("Parallel", 14, 16))
sketch6.addConstraint(Sketcher.Constraint("Parallel", 16, 19))
sketch6.addConstraint(Sketcher.Constraint("Parallel", 19, 21))
sketch6.addConstraint(Sketcher.Constraint("Parallel", 9, 26))
sketch6.addConstraint(Sketcher.Constraint("Parallel", 26, 28))
sketch6.addConstraint(Sketcher.Constraint("Horizontal", 0, 3, 2, 2))
sketch6.addConstraint(Sketcher.Constraint("Equal", 9, 14))
sketch6.addConstraint(Sketcher.Constraint("Equal", 7, 16))
sketch6.addConstraint(Sketcher.Constraint("Equal", 19, 28))
sketch6.addConstraint(Sketcher.Constraint("Radius", 5, Q("0.5 in")))
sketch6.addConstraint(Sketcher.Constraint("Angle", 7, Q("120 deg")))
sketch6.addConstraint(Sketcher.Constraint("Angle", 14, Q("-120 deg")))
sketch6.addConstraint(Sketcher.Constraint("Radius", 0, Q("0.235 in")))
sketch6.addConstraint(Sketcher.Constraint("Radius", 2, Q("1.875 in")))
sketch6.addConstraint(Sketcher.Constraint("DistanceY", 0, 3, -1, 1, Q("1.8125 in")))
sketch6.addConstraint(Sketcher.Constraint("DistanceY", 8, 3, -1, 1, Q("0.90625 in")))
sketch6.addConstraint(Sketcher.Constraint("DistanceX", 8, 3, 7, 2, Q("0.1175 in")))
sketch6.addConstraint(Sketcher.Constraint("DistanceX", 17, 3, 16, 2, Q("0.1175 in")))
sketch6.addConstraint(Sketcher.Constraint("DistanceX", 1, 2, 1, 1, 6.240059))
sketch6.addConstraint(Sketcher.Constraint("DistanceX", 8, 2, 8, 3, 2.981002))
pocket2 = body.newObject("PartDesign::Pocket", "Pocket001")
pocket2.Profile = sketch6
pocket2.Length = Q("0.1875 in")

# Sketch on XZ plane
sketch7 = body.newObject("Sketcher::SketchObject", "Sketch006")
sketch7.AttachmentSupport = (doc.getObject("XZ_Plane"), [""])
sketch7.MapMode = "FlatFace"
sketch7.AttachmentOffset = App.Placement(Vector(0, 0, 2.8012 * 25.4), App.Rotation())
sketch7.addGeometry(Part.Circle(Vector(0, 0, 0), Vector(0, 0, 1), 4.1021), False)
sketch7.addConstraint(Sketcher.Constraint("Coincident", 0, 3, -1, 1))
sketch7.addConstraint(Sketcher.Constraint("Diameter", 0, Q("0.323 in")))
doc.recompute()
hole = body.newObject("PartDesign::Hole", "Hole")
hole.Profile = sketch7
hole.ThreadType = "None"
hole.Diameter = Q("0.323 in")
hole.DepthType = "ThroughAll"

# Sketch on XZ plane
sketch8 = body.newObject("Sketcher::SketchObject", "Sketch007")
sketch8.AttachmentSupport = (doc.getObject("XZ_Plane"), [""])
sketch8.MapMode = "FlatFace"
sketch8.AttachmentOffset = App.Placement(Vector(0, 0, 2.8012 * 25.4), App.Rotation())
sketch8.addGeometry(Part.Circle(Vector(0, 9.525, 0), Vector(0, 0, 1), 3.175), False)
sketch8.addConstraint(Sketcher.Constraint("PointOnObject", 0, 3, -2))
sketch8.addConstraint(Sketcher.Constraint("Diameter", 0, Q("0.25 in")))
sketch8.addConstraint(Sketcher.Constraint("DistanceY", -1, 1, 0, 3, Q("0.375 in")))
pocket3 = body.newObject("PartDesign::Pocket", "Pocket002")
pocket3.Profile = sketch8
pocket3.Length = Q("0.5 in")
doc.recompute()

fillet = body.newObject("PartDesign::Fillet", "Fillet")
fillet.Base = (pocket3, edges_at(pocket3, [
    (-35.405, 5.715, -13.275),
    (-13.275, 5.715, -35.405),
    (13.275, 5.715, -35.405),
    (35.405, 5.715, -13.275),
    (35.405, 5.715, 13.275),
    (13.275, 5.715, 35.405),
    (-13.275, 5.715, 35.405),
    (-35.405, 5.715, 13.275),
]))
fillet.Radius = Q("0.125 in")
doc.recompute()

polarpattern2 = body.newObject("PartDesign::PolarPattern", "PolarPattern001")
polarpattern2.Originals = [pocket3]
polarpattern2.Axis = (doc.getObject("Y_Axis"), [""])
polarpattern2.Angle = 360
polarpattern2.Occurrences = 4
body.Tip = polarpattern2

# Sketch on XZ plane
sketch9 = body.newObject("Sketcher::SketchObject", "Sketch008")
sketch9.AttachmentSupport = (doc.getObject("XZ_Plane"), [""])
sketch9.MapMode = "FlatFace"
sketch9.AttachmentOffset = App.Placement(Vector(0, 0, -0.45 * 25.4), App.Rotation())
sketch9.addGeometry(Part.Circle(Vector(0, 0, 0), Vector(0, 0, 1), 48.1625), False)
sketch9.addConstraint(Sketcher.Constraint("Coincident", 0, 3, -1, 1))
sketch9.addConstraint(Sketcher.Constraint("Diameter", 0, 96.325))
pad1 = body.newObject("PartDesign::Pad", "Pad")
pad1.Profile = sketch9
pad1.Length = Q("0.45 in")

# Sketch on XZ plane
sketch10 = body.newObject("Sketcher::SketchObject", "Sketch009")
sketch10.AttachmentSupport = (doc.getObject("XZ_Plane"), [""])
sketch10.MapMode = "FlatFace"
sketch10.AttachmentOffset = App.Placement(Vector(0, 0, 0.485 * 25.4), App.Rotation())
sketch10.addGeometry(Part.Circle(Vector(0, 0, 0), Vector(0, 0, 1), 47.625), False)
sketch10.addConstraint(Sketcher.Constraint("Coincident", 0, 3, -1, 1))
sketch10.addConstraint(Sketcher.Constraint("Diameter", 0, Q("3.75 in")))
pad2 = body.newObject("PartDesign::Pad", "Pad001")
pad2.Profile = sketch10
pad2.Length = Q("0.1875 in")

doc.recompute()
